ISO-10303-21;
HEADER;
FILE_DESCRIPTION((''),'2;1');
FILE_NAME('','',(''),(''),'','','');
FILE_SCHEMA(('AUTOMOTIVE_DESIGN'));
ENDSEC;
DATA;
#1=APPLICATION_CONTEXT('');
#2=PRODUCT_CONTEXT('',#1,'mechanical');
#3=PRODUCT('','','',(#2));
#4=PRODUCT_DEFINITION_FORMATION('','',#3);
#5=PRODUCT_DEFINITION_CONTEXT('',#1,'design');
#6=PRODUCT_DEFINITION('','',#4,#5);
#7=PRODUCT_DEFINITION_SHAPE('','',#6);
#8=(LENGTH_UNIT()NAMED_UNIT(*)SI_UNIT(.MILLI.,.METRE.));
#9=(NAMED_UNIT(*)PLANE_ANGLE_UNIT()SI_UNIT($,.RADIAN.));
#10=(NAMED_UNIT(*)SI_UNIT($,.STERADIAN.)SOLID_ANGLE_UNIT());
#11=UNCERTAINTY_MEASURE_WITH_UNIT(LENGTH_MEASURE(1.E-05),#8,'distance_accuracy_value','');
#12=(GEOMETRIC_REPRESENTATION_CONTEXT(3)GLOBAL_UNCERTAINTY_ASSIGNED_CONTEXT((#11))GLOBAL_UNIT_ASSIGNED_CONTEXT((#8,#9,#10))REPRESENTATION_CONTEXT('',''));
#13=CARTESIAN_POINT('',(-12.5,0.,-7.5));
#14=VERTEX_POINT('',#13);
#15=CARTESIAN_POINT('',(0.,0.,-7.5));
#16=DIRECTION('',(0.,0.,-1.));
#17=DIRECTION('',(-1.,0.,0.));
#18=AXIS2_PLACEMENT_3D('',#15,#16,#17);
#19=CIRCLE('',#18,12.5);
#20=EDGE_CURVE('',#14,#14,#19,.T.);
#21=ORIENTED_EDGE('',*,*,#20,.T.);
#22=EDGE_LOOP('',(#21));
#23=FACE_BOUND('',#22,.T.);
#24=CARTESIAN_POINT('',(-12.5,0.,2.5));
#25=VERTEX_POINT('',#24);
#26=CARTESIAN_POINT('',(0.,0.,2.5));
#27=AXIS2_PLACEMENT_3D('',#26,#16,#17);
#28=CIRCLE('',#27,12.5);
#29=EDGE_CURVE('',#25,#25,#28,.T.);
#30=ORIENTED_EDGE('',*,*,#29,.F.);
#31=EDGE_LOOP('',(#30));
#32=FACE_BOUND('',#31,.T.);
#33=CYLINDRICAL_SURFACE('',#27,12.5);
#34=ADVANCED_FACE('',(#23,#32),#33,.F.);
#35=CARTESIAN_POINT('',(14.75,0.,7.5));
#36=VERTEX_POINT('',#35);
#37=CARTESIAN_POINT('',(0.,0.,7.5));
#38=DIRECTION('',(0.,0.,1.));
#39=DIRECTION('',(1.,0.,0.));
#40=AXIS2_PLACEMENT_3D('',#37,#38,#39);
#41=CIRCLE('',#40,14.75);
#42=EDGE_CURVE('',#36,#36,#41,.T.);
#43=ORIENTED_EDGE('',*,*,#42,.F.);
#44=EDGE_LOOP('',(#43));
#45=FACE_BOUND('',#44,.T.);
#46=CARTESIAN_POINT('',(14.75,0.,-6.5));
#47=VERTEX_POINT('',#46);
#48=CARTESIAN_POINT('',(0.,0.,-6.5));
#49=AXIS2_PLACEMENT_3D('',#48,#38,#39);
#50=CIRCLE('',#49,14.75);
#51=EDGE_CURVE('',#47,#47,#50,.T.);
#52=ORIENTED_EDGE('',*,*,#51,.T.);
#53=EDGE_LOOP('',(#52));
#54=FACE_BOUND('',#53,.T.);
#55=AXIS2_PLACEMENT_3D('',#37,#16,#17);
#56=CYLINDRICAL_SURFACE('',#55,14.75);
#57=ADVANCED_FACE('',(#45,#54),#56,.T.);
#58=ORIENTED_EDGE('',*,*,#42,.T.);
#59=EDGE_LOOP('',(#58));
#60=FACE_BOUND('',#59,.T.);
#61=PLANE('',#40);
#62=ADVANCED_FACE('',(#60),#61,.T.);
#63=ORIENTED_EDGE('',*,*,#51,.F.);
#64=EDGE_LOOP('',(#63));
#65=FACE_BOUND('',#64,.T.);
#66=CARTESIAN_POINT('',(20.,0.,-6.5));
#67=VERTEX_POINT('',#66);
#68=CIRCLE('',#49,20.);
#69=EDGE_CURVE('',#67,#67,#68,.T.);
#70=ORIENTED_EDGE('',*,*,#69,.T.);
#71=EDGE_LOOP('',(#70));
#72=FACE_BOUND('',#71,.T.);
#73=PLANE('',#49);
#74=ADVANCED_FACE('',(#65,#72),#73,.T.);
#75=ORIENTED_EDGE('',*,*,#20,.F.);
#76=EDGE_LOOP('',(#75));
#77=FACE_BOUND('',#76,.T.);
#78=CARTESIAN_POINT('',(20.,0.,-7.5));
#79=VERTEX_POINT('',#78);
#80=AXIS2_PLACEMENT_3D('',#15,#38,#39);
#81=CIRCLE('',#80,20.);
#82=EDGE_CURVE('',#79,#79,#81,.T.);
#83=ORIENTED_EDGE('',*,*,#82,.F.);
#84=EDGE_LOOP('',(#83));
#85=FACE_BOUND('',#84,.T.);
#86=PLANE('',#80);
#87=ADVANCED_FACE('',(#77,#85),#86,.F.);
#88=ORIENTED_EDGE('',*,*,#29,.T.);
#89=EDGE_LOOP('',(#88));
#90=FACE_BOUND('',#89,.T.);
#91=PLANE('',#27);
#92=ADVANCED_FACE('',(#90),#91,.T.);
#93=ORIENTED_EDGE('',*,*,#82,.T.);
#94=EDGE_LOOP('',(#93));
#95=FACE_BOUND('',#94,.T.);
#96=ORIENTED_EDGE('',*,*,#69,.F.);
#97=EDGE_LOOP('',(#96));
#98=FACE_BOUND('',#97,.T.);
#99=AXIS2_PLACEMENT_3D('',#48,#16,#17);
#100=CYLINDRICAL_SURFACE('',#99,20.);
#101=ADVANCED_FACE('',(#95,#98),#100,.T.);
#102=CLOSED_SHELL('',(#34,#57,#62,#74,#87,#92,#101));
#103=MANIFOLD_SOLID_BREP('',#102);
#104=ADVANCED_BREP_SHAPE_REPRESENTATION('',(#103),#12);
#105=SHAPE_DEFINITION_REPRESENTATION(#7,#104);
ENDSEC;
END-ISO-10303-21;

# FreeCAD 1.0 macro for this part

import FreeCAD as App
import Part
import Sketcher

doc = App.newDocument("Part")
body = doc.addObject("PartDesign::Body", "Body")

sketch1 = body.newObject("Sketcher::SketchObject", "Sketch")
sketch1.AttachmentSupport = (doc.getObject("XY_Plane"), [""])
sketch1.MapMode = "FlatFace"
sketch1.addGeometry(Part.Circle(App.Vector(0, 0, 0), App.Vector(0, 0, 1), 14.75), False)
sketch1.addConstraint(Sketcher.Constraint("Coincident", 0, 3, -1, 1))
sketch1.addConstraint(Sketcher.Constraint("Diameter", 0, 29.5))
pad1 = body.newObject("PartDesign::Pad", "Pad")
pad1.Profile = sketch1
pad1.Length = 15
pad1.Midplane = True

sketch2 = body.newObject("Sketcher::SketchObject", "Sketch001")
sketch2.AttachmentSupport = (doc.getObject("XY_Plane"), [""])
sketch2.MapMode = "FlatFace"
sketch2.AttachmentOffset = App.Placement(App.Vector(0, 0, -7.5), App.Rotation())
sketch2.addGeometry(Part.Circle(App.Vector(0, 0, 0), App.Vector(0, 0, 1), 20), False)
sketch2.addConstraint(Sketcher.Constraint("Coincident", 0, 3, -1, 1))
sketch2.addConstraint(Sketcher.Constraint("Diameter", 0, 40.0))
pad2 = body.newObject("PartDesign::Pad", "Pad001")
pad2.Profile = sketch2
pad2.Length = 1

sketch3 = body.newObject("Sketcher::SketchObject", "Sketch002")
sketch3.AttachmentSupport = (doc.getObject("XY_Plane"), [""])
sketch3.MapMode = "FlatFace"
sketch3.AttachmentOffset = App.Placement(App.Vector(0, 0, -7.5), App.Rotation())
sketch3.addGeometry(Part.Circle(App.Vector(0, 0, 0), App.Vector(0, 0, 1), 12.5), False)
sketch3.addConstraint(Sketcher.Constraint("Coincident", 0, 3, -1, 1))
sketch3.addConstraint(Sketcher.Constraint("Diameter", 0, 25.0))
pocket1 = body.newObject("PartDesign::Pocket", "Pocket")
pocket1.Profile = sketch3
pocket1.Length = 10
pocket1.Reversed = True

doc.recompute()
